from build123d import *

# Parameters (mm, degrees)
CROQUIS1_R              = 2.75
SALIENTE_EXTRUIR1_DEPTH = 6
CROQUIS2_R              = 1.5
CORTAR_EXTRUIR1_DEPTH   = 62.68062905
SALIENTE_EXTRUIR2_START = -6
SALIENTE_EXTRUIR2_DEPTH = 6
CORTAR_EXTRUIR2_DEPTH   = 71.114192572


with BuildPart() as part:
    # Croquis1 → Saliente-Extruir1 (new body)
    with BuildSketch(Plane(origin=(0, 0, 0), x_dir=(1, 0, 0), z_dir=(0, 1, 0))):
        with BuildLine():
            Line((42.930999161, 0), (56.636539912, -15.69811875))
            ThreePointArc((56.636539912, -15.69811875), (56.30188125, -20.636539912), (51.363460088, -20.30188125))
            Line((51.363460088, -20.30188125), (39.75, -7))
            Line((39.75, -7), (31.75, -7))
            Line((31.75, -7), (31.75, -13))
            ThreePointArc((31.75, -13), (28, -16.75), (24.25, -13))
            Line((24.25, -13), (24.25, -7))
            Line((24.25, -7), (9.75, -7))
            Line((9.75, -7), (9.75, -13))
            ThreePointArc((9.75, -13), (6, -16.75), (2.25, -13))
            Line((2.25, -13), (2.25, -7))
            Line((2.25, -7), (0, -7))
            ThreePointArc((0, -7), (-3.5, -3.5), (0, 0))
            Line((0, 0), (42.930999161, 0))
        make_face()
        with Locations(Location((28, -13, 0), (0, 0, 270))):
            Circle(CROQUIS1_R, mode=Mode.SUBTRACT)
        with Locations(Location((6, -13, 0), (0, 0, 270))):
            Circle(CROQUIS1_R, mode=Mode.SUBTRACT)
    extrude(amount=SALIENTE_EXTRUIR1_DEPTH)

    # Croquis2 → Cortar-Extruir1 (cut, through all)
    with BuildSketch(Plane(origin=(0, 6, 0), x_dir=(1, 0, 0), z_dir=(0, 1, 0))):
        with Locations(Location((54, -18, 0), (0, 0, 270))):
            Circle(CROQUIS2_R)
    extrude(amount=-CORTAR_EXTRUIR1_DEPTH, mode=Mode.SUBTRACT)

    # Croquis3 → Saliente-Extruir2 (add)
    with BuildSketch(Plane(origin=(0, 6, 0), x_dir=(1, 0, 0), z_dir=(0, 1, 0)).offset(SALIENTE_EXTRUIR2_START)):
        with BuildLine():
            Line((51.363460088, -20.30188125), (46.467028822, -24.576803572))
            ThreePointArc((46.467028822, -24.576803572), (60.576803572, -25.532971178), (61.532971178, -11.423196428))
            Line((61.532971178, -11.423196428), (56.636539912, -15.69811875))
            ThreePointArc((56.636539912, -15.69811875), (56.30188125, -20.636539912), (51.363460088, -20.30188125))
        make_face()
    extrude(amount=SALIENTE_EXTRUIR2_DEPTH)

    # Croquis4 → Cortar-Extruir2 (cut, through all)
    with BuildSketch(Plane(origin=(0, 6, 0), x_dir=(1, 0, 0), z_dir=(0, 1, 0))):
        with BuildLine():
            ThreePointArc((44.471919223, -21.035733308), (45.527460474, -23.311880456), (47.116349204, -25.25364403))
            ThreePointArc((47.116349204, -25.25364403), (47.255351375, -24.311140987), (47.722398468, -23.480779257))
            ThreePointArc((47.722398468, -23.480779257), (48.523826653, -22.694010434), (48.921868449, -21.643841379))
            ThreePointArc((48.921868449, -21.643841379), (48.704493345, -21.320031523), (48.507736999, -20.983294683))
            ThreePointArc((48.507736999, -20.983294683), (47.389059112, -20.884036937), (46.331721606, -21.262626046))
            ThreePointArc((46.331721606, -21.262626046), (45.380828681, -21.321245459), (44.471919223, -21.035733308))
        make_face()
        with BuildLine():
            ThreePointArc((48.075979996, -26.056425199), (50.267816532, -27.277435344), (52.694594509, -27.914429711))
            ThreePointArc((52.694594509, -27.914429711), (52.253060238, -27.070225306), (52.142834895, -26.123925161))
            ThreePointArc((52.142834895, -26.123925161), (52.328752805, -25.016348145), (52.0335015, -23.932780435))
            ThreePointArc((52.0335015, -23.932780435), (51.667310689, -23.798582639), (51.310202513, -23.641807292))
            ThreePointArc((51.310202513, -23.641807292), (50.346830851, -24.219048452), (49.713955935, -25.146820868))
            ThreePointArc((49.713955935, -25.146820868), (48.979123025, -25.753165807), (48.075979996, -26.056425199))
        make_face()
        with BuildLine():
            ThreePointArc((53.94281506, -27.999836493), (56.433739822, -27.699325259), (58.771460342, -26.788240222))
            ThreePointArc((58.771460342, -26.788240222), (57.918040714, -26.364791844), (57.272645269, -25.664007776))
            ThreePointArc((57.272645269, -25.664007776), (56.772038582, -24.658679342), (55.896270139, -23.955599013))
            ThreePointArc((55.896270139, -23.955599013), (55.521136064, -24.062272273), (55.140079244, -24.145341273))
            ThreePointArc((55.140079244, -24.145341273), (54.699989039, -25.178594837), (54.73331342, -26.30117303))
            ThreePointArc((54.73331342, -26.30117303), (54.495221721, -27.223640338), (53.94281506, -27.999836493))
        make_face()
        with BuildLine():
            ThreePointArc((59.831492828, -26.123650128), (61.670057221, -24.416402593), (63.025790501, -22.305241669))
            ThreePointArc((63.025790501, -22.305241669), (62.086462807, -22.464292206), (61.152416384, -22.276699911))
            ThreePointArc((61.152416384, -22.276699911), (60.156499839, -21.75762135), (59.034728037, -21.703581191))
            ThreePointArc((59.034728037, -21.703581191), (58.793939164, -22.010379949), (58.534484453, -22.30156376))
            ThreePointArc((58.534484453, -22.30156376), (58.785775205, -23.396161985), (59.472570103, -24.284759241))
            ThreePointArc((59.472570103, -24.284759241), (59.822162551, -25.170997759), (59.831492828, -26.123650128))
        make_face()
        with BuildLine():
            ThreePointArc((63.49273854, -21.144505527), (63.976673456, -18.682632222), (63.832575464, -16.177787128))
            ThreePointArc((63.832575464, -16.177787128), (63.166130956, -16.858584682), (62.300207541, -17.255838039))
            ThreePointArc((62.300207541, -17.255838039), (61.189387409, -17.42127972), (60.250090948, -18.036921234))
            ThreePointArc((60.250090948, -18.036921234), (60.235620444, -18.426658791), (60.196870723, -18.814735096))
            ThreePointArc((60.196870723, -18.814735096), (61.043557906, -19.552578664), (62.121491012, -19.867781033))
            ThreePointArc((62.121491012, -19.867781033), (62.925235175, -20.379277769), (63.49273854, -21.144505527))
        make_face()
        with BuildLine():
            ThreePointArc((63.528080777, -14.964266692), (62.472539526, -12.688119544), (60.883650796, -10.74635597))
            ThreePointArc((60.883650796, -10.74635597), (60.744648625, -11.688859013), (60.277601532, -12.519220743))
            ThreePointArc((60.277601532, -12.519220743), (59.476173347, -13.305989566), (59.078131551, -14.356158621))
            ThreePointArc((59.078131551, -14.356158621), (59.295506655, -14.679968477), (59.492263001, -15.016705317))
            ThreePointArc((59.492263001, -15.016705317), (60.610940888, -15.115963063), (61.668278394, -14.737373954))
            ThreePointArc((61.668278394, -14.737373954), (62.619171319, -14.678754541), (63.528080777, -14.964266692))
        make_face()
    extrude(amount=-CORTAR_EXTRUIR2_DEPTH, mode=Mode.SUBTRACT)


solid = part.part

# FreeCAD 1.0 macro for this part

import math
import FreeCAD as App
import Part
import Sketcher

V = App.Vector
Q = App.Units.Quantity

doc = App.newDocument("Part")
body = doc.addObject("PartDesign::Body", "Body")

sketch1 = body.newObject("Sketcher::SketchObject", "Sketch")
sketch1.AttachmentSupport = (doc.getObject("XZ_Plane"), [""])
sketch1.MapMode = "FlatFace"
sketch1.addGeometry(Part.LineSegment(V(56.63654, 15.698119, 0), V(42.930999, 0, 0)), False)
sketch1.addGeometry(Part.LineSegment(V(42.930999, 0, 0), V(0, 0, 0)), False)
sketch1.addGeometry(Part.ArcOfCircle(Part.Circle(V(0, 3.5, 0), V(0, 0, 1), 3.5), math.radians(90), math.radians(270)), False)
sketch1.addGeometry(Part.LineSegment(V(0, 7, 0), V(2.25, 7, 0)), False)
sketch1.addGeometry(Part.LineSegment(V(2.25, 7, 0), V(2.25, 13, 0)), False)
sketch1.addGeometry(Part.ArcOfCircle(Part.Circle(V(6, 13, 0), V(0, 0, 1), 3.75), math.radians(0), math.radians(180)), False)
sketch1.addGeometry(Part.LineSegment(V(9.75, 13, 0), V(9.75, 7, 0)), False)
sketch1.addGeometry(Part.LineSegment(V(9.75, 7, 0), V(24.25, 7, 0)), False)
sketch1.addGeometry(Part.LineSegment(V(24.25, 7, 0), V(24.25, 13, 0)), False)
sketch1.addGeometry(Part.ArcOfCircle(Part.Circle(V(28, 13, 0), V(0, 0, 1), 3.75), math.radians(0), math.radians(180)), False)
sketch1.addGeometry(Part.LineSegment(V(31.75, 13, 0), V(31.75, 7, 0)), False)
sketch1.addGeometry(Part.LineSegment(V(31.75, 7, 0), V(39.75, 7, 0)), False)
sketch1.addGeometry(Part.LineSegment(V(39.75, 7, 0), V(51.36346, 20.301881, 0)), False)
sketch1.addGeometry(Part.ArcOfCircle(Part.Circle(V(54, 18, 0), V(0, 0, 1), 3.5), math.radians(-41.123203), math.radians(138.876797)), False)
sketch1.addGeometry(Part.Circle(V(28, 13, 0), V(0, 0, 1), 2.75), False)
sketch1.addGeometry(Part.Circle(V(6, 13, 0), V(0, 0, 1), 2.75), False)
sketch1.addConstraint(Sketcher.Constraint("Coincident", 0, 2, 1, 1))
sketch1.addConstraint(Sketcher.Constraint("Tangent", 1, 2, 2, 2))
sketch1.addConstraint(Sketcher.Constraint("Tangent", 2, 1, 3, 1))
sketch1.addConstraint(Sketcher.Constraint("Coincident", 3, 2, 4, 1))
sketch1.addConstraint(Sketcher.Constraint("Tangent", 4, 2, 5, 2))
sketch1.addConstraint(Sketcher.Constraint("Tangent", 5, 1, 6, 1))
sketch1.addConstraint(Sketcher.Constraint("Coincident", 6, 2, 7, 1))
sketch1.addConstraint(Sketcher.Constraint("Coincident", 7, 2, 8, 1))
sketch1.addConstraint(Sketcher.Constraint("Tangent", 8, 2, 9, 2))
sketch1.addConstraint(Sketcher.Constraint("Tangent", 9, 1, 10, 1))
sketch1.addConstraint(Sketcher.Constraint("Coincident", 10, 2, 11, 1))
sketch1.addConstraint(Sketcher.Constraint("Coincident", 11, 2, 12, 1))
sketch1.addConstraint(Sketcher.Constraint("Tangent", 12, 2, 13, 2))
sketch1.addConstraint(Sketcher.Constraint("Tangent", 13, 1, 0, 1))
sketch1.addConstraint(Sketcher.Constraint("Horizontal", 1))
sketch1.addConstraint(Sketcher.Constraint("Horizontal", 3))
sketch1.addConstraint(Sketcher.Constraint("Vertical", 4))
sketch1.addConstraint(Sketcher.Constraint("Vertical", 6))
sketch1.addConstraint(Sketcher.Constraint("Horizontal", 7))
sketch1.addConstraint(Sketcher.Constraint("Vertical", 8))
sketch1.addConstraint(Sketcher.Constraint("Vertical", 10))
sketch1.addConstraint(Sketcher.Constraint("Horizontal", 11))
sketch1.addConstraint(Sketcher.Constraint("Coincident", 1, 2, -1, 1))
sketch1.addConstraint(Sketcher.Constraint("Coincident", 14, 3, 9, 3))
sketch1.addConstraint(Sketcher.Constraint("Coincident", 15, 3, 5, 3))
sketch1.addConstraint(Sketcher.Constraint("Equal", 5, 9))
sketch1.addConstraint(Sketcher.Constraint("Equal", 2, 13))
sketch1.addConstraint(Sketcher.Constraint("Equal", 14, 15))
sketch1.addConstraint(Sketcher.Constraint("Parallel", 0, 12))
sketch1.addConstraint(Sketcher.Constraint("Horizontal", 5, 3, 9, 3))
sketch1.addConstraint(Sketcher.Constraint("Horizontal", 3, 2, 6, 2))
sketch1.addConstraint(Sketcher.Constraint("Horizontal", 7, 2, 10, 2))
sketch1.addConstraint(Sketcher.Constraint("Diameter", 14, Q("5.5 mm")))
sketch1.addConstraint(Sketcher.Constraint("Radius", 2, Q("3.5 mm")))
sketch1.addConstraint(Sketcher.Constraint("DistanceX", 11, 1, 11, 2, Q("8 mm")))
sketch1.addConstraint(Sketcher.Constraint("DistanceY", 4, 1, 4, 2, Q("6 mm")))
sketch1.addConstraint(Sketcher.Constraint("Radius", 5, Q("3.75 mm")))
sketch1.addConstraint(Sketcher.Constraint("DistanceX", 7, 1, 7, 2, Q("14.5 mm")))
sketch1.addConstraint(Sketcher.Constraint("DistanceX", -1, 1, 5, 3, Q("6 mm")))
sketch1.addConstraint(Sketcher.Constraint("DistanceX", -1, 1, 13, 3, Q("54 mm")))
sketch1.addConstraint(Sketcher.Constraint("DistanceY", -1, 1, 13, 3, Q("18 mm")))
pad1 = body.newObject("PartDesign::Pad", "Pad")
pad1.Profile = sketch1
pad1.Length = 6
pad1.Reversed = True

sketch2 = body.newObject("Sketcher::SketchObject", "Sketch001")
sketch2.AttachmentSupport = (doc.getObject("XZ_Plane"), [""])
sketch2.MapMode = "FlatFace"
sketch2.AttachmentOffset = App.Placement(V(0, 0, -6), App.Rotation())
sketch2.addGeometry(Part.Circle(V(54, 18, 0), V(0, 0, 1), 1.5), False)
sketch2.addConstraint(Sketcher.Constraint("Diameter", 0, Q("3 mm")))
sketch2.addConstraint(Sketcher.Constraint("DistanceX", -1, 1, 0, 3, Q("54 mm")))
sketch2.addConstraint(Sketcher.Constraint("DistanceY", -1, 1, 0, 3, Q("18 mm")))
pocket1 = body.newObject("PartDesign::Pocket", "Pocket")
pocket1.Profile = sketch2
pocket1.Type = "ThroughAll"
pocket1.Reversed = True

sketch3 = body.newObject("Sketcher::SketchObject", "Sketch002")
sketch3.AttachmentSupport = (doc.getObject("XZ_Plane"), [""])
sketch3.MapMode = "FlatFace"
sketch3.addGeometry(Part.LineSegment(V(51.36346, 20.301881, 0), V(46.467029, 24.576804, 0)), False)
sketch3.addGeometry(Part.ArcOfCircle(Part.Circle(V(54, 18, 0), V(0, 0, 1), 10), math.radians(-41.123203), math.radians(138.876797)), False)
sketch3.addGeometry(Part.LineSegment(V(61.532971, 11.423196, 0), V(56.63654, 15.698119, 0)), False)
sketch3.addGeometry(Part.ArcOfCircle(Part.Circle(V(54, 18, 0), V(0, 0, 1), 3.5), math.radians(-41.123203), math.radians(138.876797)), False)
sketch3.addConstraint(Sketcher.Constraint("Coincident", 0, 2, 1, 2))
sketch3.addConstraint(Sketcher.Constraint("Coincident", 1, 1, 2, 1))
sketch3.addConstraint(Sketcher.Constraint("Coincident", 2, 2, 3, 1))
sketch3.addConstraint(Sketcher.Constraint("Coincident", 3, 2, 0, 1))
sketch3.addConstraint(Sketcher.Constraint("Coincident", 3, 3, 1, 3))
sketch3.addConstraint(Sketcher.Constraint("Parallel", 0, 2))
sketch3.addConstraint(Sketcher.Constraint("Radius", 1, Q("10 mm")))
sketch3.addConstraint(Sketcher.Constraint("Radius", 3, Q("3.5 mm")))
sketch3.addConstraint(Sketcher.Constraint("DistanceX", -1, 1, 1, 3, Q("54 mm")))
sketch3.addConstraint(Sketcher.Constraint("DistanceY", -1, 1, 1, 3, Q("18 mm")))
sketch3.addConstraint(Sketcher.Constraint("DistanceX", -1, 1, 0, 2, Q("46.467029 mm")))
sketch3.addConstraint(Sketcher.Constraint("DistanceX", -1, 1, 1, 1, Q("61.532971 mm")))
sketch3.addConstraint(Sketcher.Constraint("DistanceX", -1, 1, 2, 2, Q("56.63654 mm")))
pad2 = body.newObject("PartDesign::Pad", "Pad001")
pad2.Profile = sketch3
pad2.Length = 6
pad2.Reversed = True

sketch4 = body.newObject("Sketcher::SketchObject", "Sketch003")
sketch4.AttachmentSupport = (doc.getObject("XZ_Plane"), [""])
sketch4.MapMode = "FlatFace"
sketch4.AttachmentOffset = App.Placement(V(0, 0, -6), App.Rotation())
sketch4.addGeometry(Part.ArcOfCircle(Part.Circle(V(54, 18, 0), V(0, 0, 1), 10), math.radians(133.50083), math.radians(162.327647)), False)
sketch4.addGeometry(Part.ArcOfCircle(Part.Circle(V(49.732652, 25.158, 0), V(0, 0, 1), 2.61805), math.radians(177.906367), math.radians(219.839356)), False)
sketch4.addGeometry(Part.ArcOfCircle(Part.Circle(V(46.331722, 21.262626, 0), V(0, 0, 1), 2.61805), math.radians(8.372628), math.radians(57.914239)), False)
sketch4.addGeometry(Part.ArcOfCircle(Part.Circle(V(54, 18, 0), V(0, 0, 1), 6.2502), math.radians(144.33846), math.radians(151.490017)), False)
sketch4.addGeometry(Part.ArcOfCircle(Part.Circle(V(47.722398, 23.480779, 0), V(0, 0, 1), 2.61805), math.radians(-122.085761), math.radians(-72.544151)), False)
sketch4.addGeometry(Part.ArcOfCircle(Part.Circle(V(45.697876, 18.722464, 0), V(0, 0, 1), 2.61805), math.radians(75.989121), math.radians(117.92211)), False)
sketch4.addGeometry(Part.ArcOfCircle(Part.Circle(V(54, 18, 0), V(0, 0, 1), 10), math.radians(97.50083), math.radians(126.327647)), False)
sketch4.addGeometry(Part.ArcOfCircle(Part.Circle(V(54.755009, 26.299228, 0), V(0, 0, 1), 2.61805), math.radians(141.906366), math.radians(183.839356)), False)
sketch4.addGeometry(Part.ArcOfCircle(Part.Circle(V(49.713956, 25.146821, 0), V(0, 0, 1), 2.61805), math.radians(-27.627372), math.radians(21.914239)), False)
sketch4.addGeometry(Part.ArcOfCircle(Part.Circle(V(54, 18, 0), V(0, 0, 1), 6.2502), math.radians(108.33846), math.radians(115.490017)), False)
sketch4.addGeometry(Part.ArcOfCircle(Part.Circle(V(52.142835, 26.123925, 0), V(0, 0, 1), 2.61805), math.radians(-158.085762), math.radians(-108.544151)), False)
sketch4.addGeometry(Part.ArcOfCircle(Part.Circle(V(47.708094, 23.464352, 0), V(0, 0, 1), 2.61805), math.radians(39.989121), math.radians(81.922111)), False)
sketch4.addGeometry(Part.ArcOfCircle(Part.Circle(V(54, 18, 0), V(0, 0, 1), 10), math.radians(61.50083), math.radians(90.327647)), False)
sketch4.addGeometry(Part.ArcOfCircle(Part.Circle(V(59.488979, 24.270433, 0), V(0, 0, 1), 2.61805), math.radians(105.906366), math.radians(147.839356)), False)
sketch4.addGeometry(Part.ArcOfCircle(Part.Circle(V(54.733313, 26.301173, 0), V(0, 0, 1), 2.61805), math.radians(-63.627372), math.radians(-14.085761)), False)
sketch4.addGeometry(Part.ArcOfCircle(Part.Circle(V(54, 18, 0), V(0, 0, 1), 6.2502), math.radians(72.33846), math.radians(79.490017)), False)
sketch4.addGeometry(Part.ArcOfCircle(Part.Circle(V(57.272645, 25.664008, 0), V(0, 0, 1), 2.61805), math.radians(165.914239), math.radians(215.455849)), False)
sketch4.addGeometry(Part.ArcOfCircle(Part.Circle(V(52.121606, 26.119043, 0), V(0, 0, 1), 2.61805), math.radians(3.989121), math.radians(45.922111)), False)
sketch4.addGeometry(Part.ArcOfCircle(Part.Circle(V(54, 18, 0), V(0, 0, 1), 10), math.radians(25.50083), math.radians(54.327647)), False)
sketch4.addGeometry(Part.ArcOfCircle(Part.Circle(V(62.126345, 19.846546, 0), V(0, 0, 1), 2.61805), math.radians(69.906367), math.radians(111.839356)), False)
sketch4.addGeometry(Part.ArcOfCircle(Part.Circle(V(59.47257, 24.284759, 0), V(0, 0, 1), 2.61805), math.radians(-99.627372), math.radians(-50.085761)), False)
sketch4.addGeometry(Part.ArcOfCircle(Part.Circle(V(54, 18, 0), V(0, 0, 1), 6.2502), math.radians(36.33846), math.radians(43.490017)), False)
sketch4.addGeometry(Part.ArcOfCircle(Part.Circle(V(61.152416, 22.2767, 0), V(0, 0, 1), 2.61805), math.radians(129.914238), math.radians(179.455849)), False)
sketch4.addGeometry(Part.ArcOfCircle(Part.Circle(V(57.252601, 25.672536, 0), V(0, 0, 1), 2.61805), math.radians(-32.010879), math.radians(9.92211)), False)
sketch4.addGeometry(Part.ArcOfCircle(Part.Circle(V(54, 18, 0), V(0, 0, 1), 10), math.radians(-10.49917), math.radians(18.327647)), False)
sketch4.addGeometry(Part.ArcOfCircle(Part.Circle(V(61.659724, 14.717341, 0), V(0, 0, 1), 2.61805), math.radians(33.906366), math.radians(75.839356)), False)
sketch4.addGeometry(Part.ArcOfCircle(Part.Circle(V(62.121491, 19.867781, 0), V(0, 0, 1), 2.61805), math.radians(-135.627372), math.radians(-86.085761)), False)
sketch4.addGeometry(Part.ArcOfCircle(Part.Circle(V(54, 18, 0), V(0, 0, 1), 6.2502), math.radians(0.33846), math.radians(7.490017)), False)
sketch4.addGeometry(Part.ArcOfCircle(Part.Circle(V(62.300208, 17.255838, 0), V(0, 0, 1), 2.61805), math.radians(93.914239), math.radians(143.455849)), False)
sketch4.addGeometry(Part.ArcOfCircle(Part.Circle(V(61.141213, 22.295381, 0), V(0, 0, 1), 2.61805), math.radians(-68.010879), math.radians(-26.077889)), False)
sketch4.addGeometry(Part.ArcOfCircle(Part.Circle(V(54, 18, 0), V(0, 0, 1), 10), math.radians(-46.49917), math.radians(-17.672353)), False)
sketch4.addGeometry(Part.ArcOfCircle(Part.Circle(V(58.267348, 10.842, 0), V(0, 0, 1), 2.61805), math.radians(-2.093633), math.radians(39.839356)), False)
sketch4.addGeometry(Part.ArcOfCircle(Part.Circle(V(61.668278, 14.737374, 0), V(0, 0, 1), 2.61805), math.radians(-171.627372), math.radians(-122.085761)), False)
sketch4.addGeometry(Part.ArcOfCircle(Part.Circle(V(54, 18, 0), V(0, 0, 1), 6.2502), math.radians(-35.66154), math.radians(-28.509983)), False)
sketch4.addGeometry(Part.ArcOfCircle(Part.Circle(V(60.277602, 12.519221, 0), V(0, 0, 1), 2.61805), math.radians(57.914239), math.radians(107.455849)), False)
sketch4.addGeometry(Part.ArcOfCircle(Part.Circle(V(62.302124, 17.277536, 0), V(0, 0, 1), 2.61805), math.radians(-104.010879), math.radians(-62.07789)), False)
sketch4.addConstraint(Sketcher.Constraint("Coincident", 0, 1, 1, 1))
sketch4.addConstraint(Sketcher.Constraint("Coincident", 1, 2, 2, 2))
sketch4.addConstraint(Sketcher.Constraint("Coincident", 2, 1, 3, 1))
sketch4.addConstraint(Sketcher.Constraint("Coincident", 3, 2, 4, 2))
sketch4.addConstraint(Sketcher.Constraint("Coincident", 4, 1, 5, 1))
sketch4.addConstraint(Sketcher.Constraint("Coincident", 5, 2, 0, 2))
sketch4.addConstraint(Sketcher.Constraint("Coincident", 6, 1, 7, 1))
sketch4.addConstraint(Sketcher.Constraint("Coincident", 7, 2, 8, 2))
sketch4.addConstraint(Sketcher.Constraint("Coincident", 8, 1, 9, 1))
sketch4.addConstraint(Sketcher.Constraint("Coincident", 9, 2, 10, 2))
sketch4.addConstraint(Sketcher.Constraint("Coincident", 10, 1, 11, 1))
sketch4.addConstraint(Sketcher.Constraint("Coincident", 11, 2, 6, 2))
sketch4.addConstraint(Sketcher.Constraint("Coincident", 12, 1, 13, 1))
sketch4.addConstraint(Sketcher.Constraint("Coincident", 13, 2, 14, 2))
sketch4.addConstraint(Sketcher.Constraint("Coincident", 14, 1, 15, 1))
sketch4.addConstraint(Sketcher.Constraint("Coincident", 15, 2, 16, 2))
sketch4.addConstraint(Sketcher.Constraint("Coincident", 16, 1, 17, 1))
sketch4.addConstraint(Sketcher.Constraint("Coincident", 17, 2, 12, 2))
sketch4.addConstraint(Sketcher.Constraint("Coincident", 18, 1, 19, 1))
sketch4.addConstraint(Sketcher.Constraint("Coincident", 19, 2, 20, 2))
sketch4.addConstraint(Sketcher.Constraint("Coincident", 20, 1, 21, 1))
sketch4.addConstraint(Sketcher.Constraint("Coincident", 21, 2, 22, 2))
sketch4.addConstraint(Sketcher.Constraint("Coincident", 22, 1, 23, 1))
sketch4.addConstraint(Sketcher.Constraint("Coincident", 23, 2, 18, 2))
sketch4.addConstraint(Sketcher.Constraint("Coincident", 24, 1, 25, 1))
sketch4.addConstraint(Sketcher.Constraint("Coincident", 25, 2, 26, 2))
sketch4.addConstraint(Sketcher.Constraint("Coincident", 26, 1, 27, 1))
sketch4.addConstraint(Sketcher.Constraint("Coincident", 27, 2, 28, 2))
sketch4.addConstraint(Sketcher.Constraint("Coincident", 28, 1, 29, 1))
sketch4.addConstraint(Sketcher.Constraint("Coincident", 29, 2, 24, 2))
sketch4.addConstraint(Sketcher.Constraint("Coincident", 30, 1, 31, 1))
sketch4.addConstraint(Sketcher.Constraint("Coincident", 31, 2, 32, 2))
sketch4.addConstraint(Sketcher.Constraint("Coincident", 32, 1, 33, 1))
sketch4.addConstraint(Sketcher.Constraint("Coincident", 33, 2, 34, 2))
sketch4.addConstraint(Sketcher.Constraint("Coincident", 34, 1, 35, 1))
sketch4.addConstraint(Sketcher.Constraint("Coincident", 35, 2, 30, 2))
sketch4.addConstraint(Sketcher.Constraint("Coincident", 3, 3, 0, 3))
sketch4.addConstraint(Sketcher.Constraint("Coincident", 6, 3, 0, 3))
sketch4.addConstraint(Sketcher.Constraint("Coincident", 9, 3, 0, 3))
sketch4.addConstraint(Sketcher.Constraint("Coincident", 12, 3, 0, 3))
sketch4.addConstraint(Sketcher.Constraint("Coincident", 15, 3, 0, 3))
sketch4.addConstraint(Sketcher.Constraint("Coincident", 18, 3, 0, 3))
sketch4.addConstraint(Sketcher.Constraint("Coincident", 21, 3, 0, 3))
sketch4.addConstraint(Sketcher.Constraint("Coincident", 24, 3, 0, 3))
sketch4.addConstraint(Sketcher.Constraint("Coincident", 27, 3, 0, 3))
sketch4.addConstraint(Sketcher.Constraint("Coincident", 30, 3, 0, 3))
sketch4.addConstraint(Sketcher.Constraint("Coincident", 33, 3, 0, 3))
sketch4.addConstraint(Sketcher.Constraint("Coincident", 1, 2, 4, 3))
sketch4.addConstraint(Sketcher.Constraint("Coincident", 4, 1, 2, 3))
sketch4.addConstraint(Sketcher.Constraint("Coincident", 7, 2, 10, 3))
sketch4.addConstraint(Sketcher.Constraint("Coincident", 10, 1, 8, 3))
sketch4.addConstraint(Sketcher.Constraint("Coincident", 13, 2, 16, 3))
sketch4.addConstraint(Sketcher.Constraint("Coincident", 16, 1, 14, 3))
sketch4.addConstraint(Sketcher.Constraint("Coincident", 19, 2, 22, 3))
sketch4.addConstraint(Sketcher.Constraint("Coincident", 22, 1, 20, 3))
sketch4.addConstraint(Sketcher.Constraint("Coincident", 25, 2, 28, 3))
sketch4.addConstraint(Sketcher.Constraint("Coincident", 28, 1, 26, 3))
sketch4.addConstraint(Sketcher.Constraint("Coincident", 31, 2, 34, 3))
sketch4.addConstraint(Sketcher.Constraint("Coincident", 34, 1, 32, 3))
sketch4.addConstraint(Sketcher.Constraint("Equal", 1, 2))
sketch4.addConstraint(Sketcher.Constraint("Equal", 4, 5))
sketch4.addConstraint(Sketcher.Constraint("Equal", 0, 6))
sketch4.addConstraint(Sketcher.Constraint("Equal", 5, 7))
sketch4.addConstraint(Sketcher.Constraint("Equal", 7, 8))
sketch4.addConstraint(Sketcher.Constraint("Equal", 3, 9))
sketch4.addConstraint(Sketcher.Constraint("Equal", 10, 11))
sketch4.addConstraint(Sketcher.Constraint("Equal", 6, 12))
sketch4.addConstraint(Sketcher.Constraint("Equal", 11, 13))
sketch4.addConstraint(Sketcher.Constraint("Equal", 13, 14))
sketch4.addConstraint(Sketcher.Constraint("Equal", 9, 15))
sketch4.addConstraint(Sketcher.Constraint("Equal", 16, 17))
sketch4.addConstraint(Sketcher.Constraint("Equal", 12, 18))
sketch4.addConstraint(Sketcher.Constraint("Equal", 17, 19))
sketch4.addConstraint(Sketcher.Constraint("Equal", 19, 20))
sketch4.addConstraint(Sketcher.Constraint("Equal", 15, 21))
sketch4.addConstraint(Sketcher.Constraint("Equal", 22, 23))
sketch4.addConstraint(Sketcher.Constraint("Equal", 18, 24))
sketch4.addConstraint(Sketcher.Constraint("Equal", 23, 25))
sketch4.addConstraint(Sketcher.Constraint("Equal", 25, 26))
sketch4.addConstraint(Sketcher.Constraint("Equal", 21, 27))
sketch4.addConstraint(Sketcher.Constraint("Equal", 28, 29))
sketch4.addConstraint(Sketcher.Constraint("Equal", 24, 30))
sketch4.addConstraint(Sketcher.Constraint("Equal", 29, 31))
sketch4.addConstraint(Sketcher.Constraint("Equal", 31, 32))
sketch4.addConstraint(Sketcher.Constraint("Equal", 27, 33))
sketch4.addConstraint(Sketcher.Constraint("Equal", 34, 35))
sketch4.addConstraint(Sketcher.Constraint("Radius", 0, Q("10 mm")))
sketch4.addConstraint(Sketcher.Constraint("DistanceX", -1, 1, 0, 3, Q("54 mm")))
sketch4.addConstraint(Sketcher.Constraint("DistanceY", -1, 1, 0, 3, Q("18 mm")))
sketch4.addConstraint(Sketcher.Constraint("Radius", 3, Q("6.2502 mm")))
sketch4.addConstraint(Sketcher.Constraint("Radius", 1, Q("2.61805 mm")))
sketch4.addConstraint(Sketcher.Constraint("DistanceY", -1, 1, 1, 3, Q("25.158 mm")))
sketch4.addConstraint(Sketcher.Constraint("DistanceY", -1, 1, 31, 3, Q("10.842 mm")))
sketch4.addConstraint(Sketcher.Constraint("DistanceX", -1, 1, 4, 3, Q("47.722398 mm")))
sketch4.addConstraint(Sketcher.Constraint("DistanceY", -1, 1, 22, 3, Q("22.2767 mm")))
sketch4.addConstraint(Sketcher.Constraint("DistanceX", -1, 1, 23, 3, Q("57.252601 mm")))
sketch4.addConstraint(Sketcher.Constraint("DistanceX", -1, 1, 34, 3, Q("60.277602 mm")))
sketch4.addConstraint(Sketcher.Constraint("DistanceX", -1, 1, 8, 1, Q("52.033501 mm")))
sketch4.addConstraint(Sketcher.Constraint("DistanceY", -1, 1, 14, 1, Q("23.955599 mm")))
sketch4.addConstraint(Sketcher.Constraint("DistanceX", -1, 1, 1, 3, Q("49.732652 mm")))
sketch4.addConstraint(Sketcher.Constraint("DistanceX", -1, 1, 2, 3, Q("46.331722 mm")))
sketch4.addConstraint(Sketcher.Constraint("DistanceX", -1, 1, 7, 3, Q("54.755009 mm")))
sketch4.addConstraint(Sketcher.Constraint("DistanceY", -1, 1, 8, 3, Q("25.146821 mm")))
sketch4.addConstraint(Sketcher.Constraint("DistanceY", -1, 1, 11, 3, Q("23.464352 mm")))
sketch4.addConstraint(Sketcher.Constraint("DistanceX", -1, 1, 13, 3, Q("59.488979 mm")))
sketch4.addConstraint(Sketcher.Constraint("DistanceX", -1, 1, 20, 3, Q("59.47257 mm")))
sketch4.addConstraint(Sketcher.Constraint("DistanceY", -1, 1, 20, 3, Q("24.284759 mm")))
sketch4.addConstraint(Sketcher.Constraint("DistanceY", -1, 1, 25, 3, Q("14.717341 mm")))
sketch4.addConstraint(Sketcher.Constraint("DistanceX", -1, 1, 26, 3, Q("62.121491 mm")))
sketch4.addConstraint(Sketcher.Constraint("DistanceY", -1, 1, 26, 3, Q("19.867781 mm")))
sketch4.addConstraint(Sketcher.Constraint("DistanceY", -1, 1, 28, 3, Q("17.255838 mm")))
sketch4.addConstraint(Sketcher.Constraint("DistanceY", -1, 1, 29, 3, Q("22.295381 mm")))
sketch4.addConstraint(Sketcher.Constraint("DistanceX", -1, 1, 31, 3, Q("58.267348 mm")))
sketch4.addConstraint(Sketcher.Constraint("DistanceX", -1, 1, 32, 3, Q("61.668278 mm")))
sketch4.addConstraint(Sketcher.Constraint("DistanceX", -1, 1, 5, 2, Q("44.471919 mm")))
sketch4.addConstraint(Sketcher.Constraint("DistanceY", -1, 1, 6, 1, Q("27.91443 mm")))
sketch4.addConstraint(Sketcher.Constraint("DistanceX", -1, 1, 12, 1, Q("58.77146 mm")))
sketch4.addConstraint(Sketcher.Constraint("DistanceX", -1, 1, 15, 2, Q("55.140079 mm")))
sketch4.addConstraint(Sketcher.Constraint("DistanceX", -1, 1, 18, 1, Q("63.025791 mm")))
sketch4.addConstraint(Sketcher.Constraint("DistanceX", -1, 1, 35, 2, Q("63.528081 mm")))
sketch4.addConstraint(Sketcher.Constraint("DistanceX", -1, 1, 17, 3, Q("52.121606 mm")))
pocket2 = body.newObject("PartDesign::Pocket", "Pocket001")
pocket2.Profile = sketch4
pocket2.Type = "ThroughAll"
pocket2.Reversed = True

doc.recompute()
